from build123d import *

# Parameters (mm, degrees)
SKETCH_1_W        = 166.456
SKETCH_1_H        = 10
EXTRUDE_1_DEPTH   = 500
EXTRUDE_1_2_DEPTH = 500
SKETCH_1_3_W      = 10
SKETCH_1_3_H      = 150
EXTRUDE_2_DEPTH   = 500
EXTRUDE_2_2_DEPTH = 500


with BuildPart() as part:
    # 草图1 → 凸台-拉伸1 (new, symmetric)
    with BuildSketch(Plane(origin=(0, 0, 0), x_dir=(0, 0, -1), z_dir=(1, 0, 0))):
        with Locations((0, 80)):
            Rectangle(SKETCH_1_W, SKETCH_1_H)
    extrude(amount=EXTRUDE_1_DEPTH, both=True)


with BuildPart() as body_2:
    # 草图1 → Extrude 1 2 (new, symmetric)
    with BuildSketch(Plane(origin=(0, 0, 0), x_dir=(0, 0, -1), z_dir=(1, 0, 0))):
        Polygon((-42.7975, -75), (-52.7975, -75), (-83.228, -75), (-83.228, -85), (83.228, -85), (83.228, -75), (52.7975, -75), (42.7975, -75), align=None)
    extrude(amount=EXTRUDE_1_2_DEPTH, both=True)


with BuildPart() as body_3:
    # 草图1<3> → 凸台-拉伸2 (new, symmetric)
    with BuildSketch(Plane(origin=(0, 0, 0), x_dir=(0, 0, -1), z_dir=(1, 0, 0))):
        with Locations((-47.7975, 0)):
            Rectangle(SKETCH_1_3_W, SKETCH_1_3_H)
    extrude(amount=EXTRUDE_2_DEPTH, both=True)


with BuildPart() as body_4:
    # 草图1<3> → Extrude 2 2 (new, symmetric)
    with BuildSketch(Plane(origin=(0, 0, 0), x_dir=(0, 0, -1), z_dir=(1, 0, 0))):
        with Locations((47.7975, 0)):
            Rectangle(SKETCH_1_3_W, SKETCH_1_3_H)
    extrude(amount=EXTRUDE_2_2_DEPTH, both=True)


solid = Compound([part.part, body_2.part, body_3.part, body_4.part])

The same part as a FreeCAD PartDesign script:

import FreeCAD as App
import Part
import Sketcher
from FreeCAD import Vector


def add_polygon(sketch, points):
    """Adds a closed chain of lines whose ends are joined by coincident constraints."""
    first, n = sketch.GeometryCount, len(points)
    for a, b in zip(points, points[1:] + points[:1]):
        sketch.addGeometry(Part.LineSegment(App.Vector(*a, 0), App.Vector(*b, 0)), False)
    for i in range(n):
        sketch.addConstraint(Sketcher.Constraint("Coincident", first + i, 2, first + (i + 1) % n, 1))

doc = App.newDocument("Part")
params = doc.addObject("Spreadsheet::Sheet", "Params")
for row, (alias, value) in enumerate([
    ("sketch1_width", "10 mm"),
    ("pad1_length", "1000 mm"),
    ("sketch2_width", "10 mm"),
    ("pad2_length", "1000 mm"),
    ("sketch3_width", "150 mm"),
    ("sketch3_height", "10 mm"),
    ("pad3_length", "1000 mm"),
    ("sketch4_width", "150 mm"),
    ("sketch4_height", "10 mm"),
    ("pad4_length", "1000 mm"),
], start=1):
    params.set(f"A{row}", alias)
    params.set(f"B{row}", "=" + value)
    params.setAlias(f"B{row}", alias)

body = doc.addObject("PartDesign::Body", "Body")

sketch1 = doc.addObject("Sketcher::SketchObject", "Sketch")
body.addObject(sketch1)
sketch1.AttachmentSupport = (doc.YZ_Plane, [""])
sketch1.MapMode = "FlatFace"
add_polygon(sketch1, [(85, 83.228), (75, 83.228), (75, -83.228), (85, -83.228)])
sketch1.addConstraint([
    Sketcher.Constraint("Horizontal", 0),
    Sketcher.Constraint("Vertical", 1),
    Sketcher.Constraint("Horizontal", 2),
    Sketcher.Constraint("Vertical", 3),
    Sketcher.Constraint("DistanceX", 0, 2, 0, 1, 10.0),
    Sketcher.Constraint("DistanceX", -1, 1, 0, 2, 75.0),
    Sketcher.Constraint("DistanceY", 1, 2, 1, 1, 166.456),
    Sketcher.Constraint("DistanceY", -1, 1, 0, 2, 83.228),
])
sketch1.setExpression("Constraints[8]", "Params.sketch1_width")
pad1 = doc.addObject("PartDesign::Pad", "Pad")
body.addObject(pad1)
pad1.Profile = sketch1
pad1.setExpression("Length", "Params.pad1_length")
pad1.Midplane = True
body2 = doc.addObject("PartDesign::Body", "Body001")

sketch2 = doc.addObject("Sketcher::SketchObject", "Sketch001")
body2.addObject(sketch2)
sketch2.AttachmentSupport = (doc.getObject("YZ_Plane001"), [""])
sketch2.MapMode = "FlatFace"
add_polygon(sketch2, [(-75, 83.228), (-85, 83.228), (-85, -83.228), (-75, -83.228)])
sketch2.addConstraint([
    Sketcher.Constraint("Horizontal", 0),
    Sketcher.Constraint("Vertical", 1),
    Sketcher.Constraint("Horizontal", 2),
    Sketcher.Constraint("Vertical", 3),
    Sketcher.Constraint("DistanceX", 0, 2, 0, 1, 10.0),
    Sketcher.Constraint("DistanceX", 0, 2, -1, 1, 85.0),
    Sketcher.Constraint("DistanceY", 1, 2, 1, 1, 166.456),
    Sketcher.Constraint("DistanceY", -1, 1, 0, 2, 83.228),
])
sketch2.setExpression("Constraints[8]", "Params.sketch2_width")
pad2 = doc.addObject("PartDesign::Pad", "Pad001")
body2.addObject(pad2)
pad2.Profile = sketch2
pad2.setExpression("Length", "Params.pad2_length")
pad2.Midplane = True
body3 = doc.addObject("PartDesign::Body", "Body002")

sketch3 = doc.addObject("Sketcher::SketchObject", "Sketch002")
body3.addObject(sketch3)
sketch3.AttachmentSupport = (doc.getObject("YZ_Plane002"), [""])
sketch3.MapMode = "FlatFace"
add_polygon(sketch3, [(75, 52.7975), (-75, 52.7975), (-75, 42.7975), (75, 42.7975)])
sketch3.addConstraint([
    Sketcher.Constraint("Horizontal", 0),
    Sketcher.Constraint("Vertical", 1),
    Sketcher.Constraint("Horizontal", 2),
    Sketcher.Constraint("Vertical", 3),
    Sketcher.Constraint("DistanceX", 0, 2, 0, 1, 150.0),
    Sketcher.Constraint("DistanceY", 1, 2, 1, 1, 10.0),
    Sketcher.Constraint("DistanceX", 0, 2, -1, 1, 75.0),
    Sketcher.Constraint("DistanceY", -1, 1, 0, 2, 52.7975),
])
sketch3.setExpression("Constraints[8]", "Params.sketch3_width")
sketch3.setExpression("Constraints[9]", "Params.sketch3_height")
pad3 = doc.addObject("PartDesign::Pad", "Pad002")
body3.addObject(pad3)
pad3.Profile = sketch3
pad3.setExpression("Length", "Params.pad3_length")
pad3.Midplane = True
body4 = doc.addObject("PartDesign::Body", "Body003")

sketch4 = doc.addObject("Sketcher::SketchObject", "Sketch003")
body4.addObject(sketch4)
sketch4.AttachmentSupport = (doc.getObject("YZ_Plane003"), [""])
sketch4.MapMode = "FlatFace"
add_polygon(sketch4, [(75, -42.7975), (-75, -42.7975), (-75, -52.7975), (75, -52.7975)])
sketch4.addConstraint([
    Sketcher.Constraint("Horizontal", 0),
    Sketcher.Constraint("Vertical", 1),
    Sketcher.Constraint("Horizontal", 2),
    Sketcher.Constraint("Vertical", 3),
    Sketcher.Constraint("DistanceX", 0, 2, 0, 1, 150.0),
    Sketcher.Constraint("DistanceY", 1, 2, 1, 1, 10.0),
    Sketcher.Constraint("DistanceX", 0, 2, -1, 1, 75.0),
    Sketcher.Constraint("DistanceY", 0, 2, -1, 1, 42.7975),
])
sketch4.setExpression("Constraints[8]", "Params.sketch4_width")
sketch4.setExpression("Constraints[9]", "Params.sketch4_height")
pad4 = doc.addObject("PartDesign::Pad", "Pad003")
body4.addObject(pad4)
pad4.Profile = sketch4
pad4.setExpression("Length", "Params.pad4_length")
pad4.Midplane = True

doc.recompute()
